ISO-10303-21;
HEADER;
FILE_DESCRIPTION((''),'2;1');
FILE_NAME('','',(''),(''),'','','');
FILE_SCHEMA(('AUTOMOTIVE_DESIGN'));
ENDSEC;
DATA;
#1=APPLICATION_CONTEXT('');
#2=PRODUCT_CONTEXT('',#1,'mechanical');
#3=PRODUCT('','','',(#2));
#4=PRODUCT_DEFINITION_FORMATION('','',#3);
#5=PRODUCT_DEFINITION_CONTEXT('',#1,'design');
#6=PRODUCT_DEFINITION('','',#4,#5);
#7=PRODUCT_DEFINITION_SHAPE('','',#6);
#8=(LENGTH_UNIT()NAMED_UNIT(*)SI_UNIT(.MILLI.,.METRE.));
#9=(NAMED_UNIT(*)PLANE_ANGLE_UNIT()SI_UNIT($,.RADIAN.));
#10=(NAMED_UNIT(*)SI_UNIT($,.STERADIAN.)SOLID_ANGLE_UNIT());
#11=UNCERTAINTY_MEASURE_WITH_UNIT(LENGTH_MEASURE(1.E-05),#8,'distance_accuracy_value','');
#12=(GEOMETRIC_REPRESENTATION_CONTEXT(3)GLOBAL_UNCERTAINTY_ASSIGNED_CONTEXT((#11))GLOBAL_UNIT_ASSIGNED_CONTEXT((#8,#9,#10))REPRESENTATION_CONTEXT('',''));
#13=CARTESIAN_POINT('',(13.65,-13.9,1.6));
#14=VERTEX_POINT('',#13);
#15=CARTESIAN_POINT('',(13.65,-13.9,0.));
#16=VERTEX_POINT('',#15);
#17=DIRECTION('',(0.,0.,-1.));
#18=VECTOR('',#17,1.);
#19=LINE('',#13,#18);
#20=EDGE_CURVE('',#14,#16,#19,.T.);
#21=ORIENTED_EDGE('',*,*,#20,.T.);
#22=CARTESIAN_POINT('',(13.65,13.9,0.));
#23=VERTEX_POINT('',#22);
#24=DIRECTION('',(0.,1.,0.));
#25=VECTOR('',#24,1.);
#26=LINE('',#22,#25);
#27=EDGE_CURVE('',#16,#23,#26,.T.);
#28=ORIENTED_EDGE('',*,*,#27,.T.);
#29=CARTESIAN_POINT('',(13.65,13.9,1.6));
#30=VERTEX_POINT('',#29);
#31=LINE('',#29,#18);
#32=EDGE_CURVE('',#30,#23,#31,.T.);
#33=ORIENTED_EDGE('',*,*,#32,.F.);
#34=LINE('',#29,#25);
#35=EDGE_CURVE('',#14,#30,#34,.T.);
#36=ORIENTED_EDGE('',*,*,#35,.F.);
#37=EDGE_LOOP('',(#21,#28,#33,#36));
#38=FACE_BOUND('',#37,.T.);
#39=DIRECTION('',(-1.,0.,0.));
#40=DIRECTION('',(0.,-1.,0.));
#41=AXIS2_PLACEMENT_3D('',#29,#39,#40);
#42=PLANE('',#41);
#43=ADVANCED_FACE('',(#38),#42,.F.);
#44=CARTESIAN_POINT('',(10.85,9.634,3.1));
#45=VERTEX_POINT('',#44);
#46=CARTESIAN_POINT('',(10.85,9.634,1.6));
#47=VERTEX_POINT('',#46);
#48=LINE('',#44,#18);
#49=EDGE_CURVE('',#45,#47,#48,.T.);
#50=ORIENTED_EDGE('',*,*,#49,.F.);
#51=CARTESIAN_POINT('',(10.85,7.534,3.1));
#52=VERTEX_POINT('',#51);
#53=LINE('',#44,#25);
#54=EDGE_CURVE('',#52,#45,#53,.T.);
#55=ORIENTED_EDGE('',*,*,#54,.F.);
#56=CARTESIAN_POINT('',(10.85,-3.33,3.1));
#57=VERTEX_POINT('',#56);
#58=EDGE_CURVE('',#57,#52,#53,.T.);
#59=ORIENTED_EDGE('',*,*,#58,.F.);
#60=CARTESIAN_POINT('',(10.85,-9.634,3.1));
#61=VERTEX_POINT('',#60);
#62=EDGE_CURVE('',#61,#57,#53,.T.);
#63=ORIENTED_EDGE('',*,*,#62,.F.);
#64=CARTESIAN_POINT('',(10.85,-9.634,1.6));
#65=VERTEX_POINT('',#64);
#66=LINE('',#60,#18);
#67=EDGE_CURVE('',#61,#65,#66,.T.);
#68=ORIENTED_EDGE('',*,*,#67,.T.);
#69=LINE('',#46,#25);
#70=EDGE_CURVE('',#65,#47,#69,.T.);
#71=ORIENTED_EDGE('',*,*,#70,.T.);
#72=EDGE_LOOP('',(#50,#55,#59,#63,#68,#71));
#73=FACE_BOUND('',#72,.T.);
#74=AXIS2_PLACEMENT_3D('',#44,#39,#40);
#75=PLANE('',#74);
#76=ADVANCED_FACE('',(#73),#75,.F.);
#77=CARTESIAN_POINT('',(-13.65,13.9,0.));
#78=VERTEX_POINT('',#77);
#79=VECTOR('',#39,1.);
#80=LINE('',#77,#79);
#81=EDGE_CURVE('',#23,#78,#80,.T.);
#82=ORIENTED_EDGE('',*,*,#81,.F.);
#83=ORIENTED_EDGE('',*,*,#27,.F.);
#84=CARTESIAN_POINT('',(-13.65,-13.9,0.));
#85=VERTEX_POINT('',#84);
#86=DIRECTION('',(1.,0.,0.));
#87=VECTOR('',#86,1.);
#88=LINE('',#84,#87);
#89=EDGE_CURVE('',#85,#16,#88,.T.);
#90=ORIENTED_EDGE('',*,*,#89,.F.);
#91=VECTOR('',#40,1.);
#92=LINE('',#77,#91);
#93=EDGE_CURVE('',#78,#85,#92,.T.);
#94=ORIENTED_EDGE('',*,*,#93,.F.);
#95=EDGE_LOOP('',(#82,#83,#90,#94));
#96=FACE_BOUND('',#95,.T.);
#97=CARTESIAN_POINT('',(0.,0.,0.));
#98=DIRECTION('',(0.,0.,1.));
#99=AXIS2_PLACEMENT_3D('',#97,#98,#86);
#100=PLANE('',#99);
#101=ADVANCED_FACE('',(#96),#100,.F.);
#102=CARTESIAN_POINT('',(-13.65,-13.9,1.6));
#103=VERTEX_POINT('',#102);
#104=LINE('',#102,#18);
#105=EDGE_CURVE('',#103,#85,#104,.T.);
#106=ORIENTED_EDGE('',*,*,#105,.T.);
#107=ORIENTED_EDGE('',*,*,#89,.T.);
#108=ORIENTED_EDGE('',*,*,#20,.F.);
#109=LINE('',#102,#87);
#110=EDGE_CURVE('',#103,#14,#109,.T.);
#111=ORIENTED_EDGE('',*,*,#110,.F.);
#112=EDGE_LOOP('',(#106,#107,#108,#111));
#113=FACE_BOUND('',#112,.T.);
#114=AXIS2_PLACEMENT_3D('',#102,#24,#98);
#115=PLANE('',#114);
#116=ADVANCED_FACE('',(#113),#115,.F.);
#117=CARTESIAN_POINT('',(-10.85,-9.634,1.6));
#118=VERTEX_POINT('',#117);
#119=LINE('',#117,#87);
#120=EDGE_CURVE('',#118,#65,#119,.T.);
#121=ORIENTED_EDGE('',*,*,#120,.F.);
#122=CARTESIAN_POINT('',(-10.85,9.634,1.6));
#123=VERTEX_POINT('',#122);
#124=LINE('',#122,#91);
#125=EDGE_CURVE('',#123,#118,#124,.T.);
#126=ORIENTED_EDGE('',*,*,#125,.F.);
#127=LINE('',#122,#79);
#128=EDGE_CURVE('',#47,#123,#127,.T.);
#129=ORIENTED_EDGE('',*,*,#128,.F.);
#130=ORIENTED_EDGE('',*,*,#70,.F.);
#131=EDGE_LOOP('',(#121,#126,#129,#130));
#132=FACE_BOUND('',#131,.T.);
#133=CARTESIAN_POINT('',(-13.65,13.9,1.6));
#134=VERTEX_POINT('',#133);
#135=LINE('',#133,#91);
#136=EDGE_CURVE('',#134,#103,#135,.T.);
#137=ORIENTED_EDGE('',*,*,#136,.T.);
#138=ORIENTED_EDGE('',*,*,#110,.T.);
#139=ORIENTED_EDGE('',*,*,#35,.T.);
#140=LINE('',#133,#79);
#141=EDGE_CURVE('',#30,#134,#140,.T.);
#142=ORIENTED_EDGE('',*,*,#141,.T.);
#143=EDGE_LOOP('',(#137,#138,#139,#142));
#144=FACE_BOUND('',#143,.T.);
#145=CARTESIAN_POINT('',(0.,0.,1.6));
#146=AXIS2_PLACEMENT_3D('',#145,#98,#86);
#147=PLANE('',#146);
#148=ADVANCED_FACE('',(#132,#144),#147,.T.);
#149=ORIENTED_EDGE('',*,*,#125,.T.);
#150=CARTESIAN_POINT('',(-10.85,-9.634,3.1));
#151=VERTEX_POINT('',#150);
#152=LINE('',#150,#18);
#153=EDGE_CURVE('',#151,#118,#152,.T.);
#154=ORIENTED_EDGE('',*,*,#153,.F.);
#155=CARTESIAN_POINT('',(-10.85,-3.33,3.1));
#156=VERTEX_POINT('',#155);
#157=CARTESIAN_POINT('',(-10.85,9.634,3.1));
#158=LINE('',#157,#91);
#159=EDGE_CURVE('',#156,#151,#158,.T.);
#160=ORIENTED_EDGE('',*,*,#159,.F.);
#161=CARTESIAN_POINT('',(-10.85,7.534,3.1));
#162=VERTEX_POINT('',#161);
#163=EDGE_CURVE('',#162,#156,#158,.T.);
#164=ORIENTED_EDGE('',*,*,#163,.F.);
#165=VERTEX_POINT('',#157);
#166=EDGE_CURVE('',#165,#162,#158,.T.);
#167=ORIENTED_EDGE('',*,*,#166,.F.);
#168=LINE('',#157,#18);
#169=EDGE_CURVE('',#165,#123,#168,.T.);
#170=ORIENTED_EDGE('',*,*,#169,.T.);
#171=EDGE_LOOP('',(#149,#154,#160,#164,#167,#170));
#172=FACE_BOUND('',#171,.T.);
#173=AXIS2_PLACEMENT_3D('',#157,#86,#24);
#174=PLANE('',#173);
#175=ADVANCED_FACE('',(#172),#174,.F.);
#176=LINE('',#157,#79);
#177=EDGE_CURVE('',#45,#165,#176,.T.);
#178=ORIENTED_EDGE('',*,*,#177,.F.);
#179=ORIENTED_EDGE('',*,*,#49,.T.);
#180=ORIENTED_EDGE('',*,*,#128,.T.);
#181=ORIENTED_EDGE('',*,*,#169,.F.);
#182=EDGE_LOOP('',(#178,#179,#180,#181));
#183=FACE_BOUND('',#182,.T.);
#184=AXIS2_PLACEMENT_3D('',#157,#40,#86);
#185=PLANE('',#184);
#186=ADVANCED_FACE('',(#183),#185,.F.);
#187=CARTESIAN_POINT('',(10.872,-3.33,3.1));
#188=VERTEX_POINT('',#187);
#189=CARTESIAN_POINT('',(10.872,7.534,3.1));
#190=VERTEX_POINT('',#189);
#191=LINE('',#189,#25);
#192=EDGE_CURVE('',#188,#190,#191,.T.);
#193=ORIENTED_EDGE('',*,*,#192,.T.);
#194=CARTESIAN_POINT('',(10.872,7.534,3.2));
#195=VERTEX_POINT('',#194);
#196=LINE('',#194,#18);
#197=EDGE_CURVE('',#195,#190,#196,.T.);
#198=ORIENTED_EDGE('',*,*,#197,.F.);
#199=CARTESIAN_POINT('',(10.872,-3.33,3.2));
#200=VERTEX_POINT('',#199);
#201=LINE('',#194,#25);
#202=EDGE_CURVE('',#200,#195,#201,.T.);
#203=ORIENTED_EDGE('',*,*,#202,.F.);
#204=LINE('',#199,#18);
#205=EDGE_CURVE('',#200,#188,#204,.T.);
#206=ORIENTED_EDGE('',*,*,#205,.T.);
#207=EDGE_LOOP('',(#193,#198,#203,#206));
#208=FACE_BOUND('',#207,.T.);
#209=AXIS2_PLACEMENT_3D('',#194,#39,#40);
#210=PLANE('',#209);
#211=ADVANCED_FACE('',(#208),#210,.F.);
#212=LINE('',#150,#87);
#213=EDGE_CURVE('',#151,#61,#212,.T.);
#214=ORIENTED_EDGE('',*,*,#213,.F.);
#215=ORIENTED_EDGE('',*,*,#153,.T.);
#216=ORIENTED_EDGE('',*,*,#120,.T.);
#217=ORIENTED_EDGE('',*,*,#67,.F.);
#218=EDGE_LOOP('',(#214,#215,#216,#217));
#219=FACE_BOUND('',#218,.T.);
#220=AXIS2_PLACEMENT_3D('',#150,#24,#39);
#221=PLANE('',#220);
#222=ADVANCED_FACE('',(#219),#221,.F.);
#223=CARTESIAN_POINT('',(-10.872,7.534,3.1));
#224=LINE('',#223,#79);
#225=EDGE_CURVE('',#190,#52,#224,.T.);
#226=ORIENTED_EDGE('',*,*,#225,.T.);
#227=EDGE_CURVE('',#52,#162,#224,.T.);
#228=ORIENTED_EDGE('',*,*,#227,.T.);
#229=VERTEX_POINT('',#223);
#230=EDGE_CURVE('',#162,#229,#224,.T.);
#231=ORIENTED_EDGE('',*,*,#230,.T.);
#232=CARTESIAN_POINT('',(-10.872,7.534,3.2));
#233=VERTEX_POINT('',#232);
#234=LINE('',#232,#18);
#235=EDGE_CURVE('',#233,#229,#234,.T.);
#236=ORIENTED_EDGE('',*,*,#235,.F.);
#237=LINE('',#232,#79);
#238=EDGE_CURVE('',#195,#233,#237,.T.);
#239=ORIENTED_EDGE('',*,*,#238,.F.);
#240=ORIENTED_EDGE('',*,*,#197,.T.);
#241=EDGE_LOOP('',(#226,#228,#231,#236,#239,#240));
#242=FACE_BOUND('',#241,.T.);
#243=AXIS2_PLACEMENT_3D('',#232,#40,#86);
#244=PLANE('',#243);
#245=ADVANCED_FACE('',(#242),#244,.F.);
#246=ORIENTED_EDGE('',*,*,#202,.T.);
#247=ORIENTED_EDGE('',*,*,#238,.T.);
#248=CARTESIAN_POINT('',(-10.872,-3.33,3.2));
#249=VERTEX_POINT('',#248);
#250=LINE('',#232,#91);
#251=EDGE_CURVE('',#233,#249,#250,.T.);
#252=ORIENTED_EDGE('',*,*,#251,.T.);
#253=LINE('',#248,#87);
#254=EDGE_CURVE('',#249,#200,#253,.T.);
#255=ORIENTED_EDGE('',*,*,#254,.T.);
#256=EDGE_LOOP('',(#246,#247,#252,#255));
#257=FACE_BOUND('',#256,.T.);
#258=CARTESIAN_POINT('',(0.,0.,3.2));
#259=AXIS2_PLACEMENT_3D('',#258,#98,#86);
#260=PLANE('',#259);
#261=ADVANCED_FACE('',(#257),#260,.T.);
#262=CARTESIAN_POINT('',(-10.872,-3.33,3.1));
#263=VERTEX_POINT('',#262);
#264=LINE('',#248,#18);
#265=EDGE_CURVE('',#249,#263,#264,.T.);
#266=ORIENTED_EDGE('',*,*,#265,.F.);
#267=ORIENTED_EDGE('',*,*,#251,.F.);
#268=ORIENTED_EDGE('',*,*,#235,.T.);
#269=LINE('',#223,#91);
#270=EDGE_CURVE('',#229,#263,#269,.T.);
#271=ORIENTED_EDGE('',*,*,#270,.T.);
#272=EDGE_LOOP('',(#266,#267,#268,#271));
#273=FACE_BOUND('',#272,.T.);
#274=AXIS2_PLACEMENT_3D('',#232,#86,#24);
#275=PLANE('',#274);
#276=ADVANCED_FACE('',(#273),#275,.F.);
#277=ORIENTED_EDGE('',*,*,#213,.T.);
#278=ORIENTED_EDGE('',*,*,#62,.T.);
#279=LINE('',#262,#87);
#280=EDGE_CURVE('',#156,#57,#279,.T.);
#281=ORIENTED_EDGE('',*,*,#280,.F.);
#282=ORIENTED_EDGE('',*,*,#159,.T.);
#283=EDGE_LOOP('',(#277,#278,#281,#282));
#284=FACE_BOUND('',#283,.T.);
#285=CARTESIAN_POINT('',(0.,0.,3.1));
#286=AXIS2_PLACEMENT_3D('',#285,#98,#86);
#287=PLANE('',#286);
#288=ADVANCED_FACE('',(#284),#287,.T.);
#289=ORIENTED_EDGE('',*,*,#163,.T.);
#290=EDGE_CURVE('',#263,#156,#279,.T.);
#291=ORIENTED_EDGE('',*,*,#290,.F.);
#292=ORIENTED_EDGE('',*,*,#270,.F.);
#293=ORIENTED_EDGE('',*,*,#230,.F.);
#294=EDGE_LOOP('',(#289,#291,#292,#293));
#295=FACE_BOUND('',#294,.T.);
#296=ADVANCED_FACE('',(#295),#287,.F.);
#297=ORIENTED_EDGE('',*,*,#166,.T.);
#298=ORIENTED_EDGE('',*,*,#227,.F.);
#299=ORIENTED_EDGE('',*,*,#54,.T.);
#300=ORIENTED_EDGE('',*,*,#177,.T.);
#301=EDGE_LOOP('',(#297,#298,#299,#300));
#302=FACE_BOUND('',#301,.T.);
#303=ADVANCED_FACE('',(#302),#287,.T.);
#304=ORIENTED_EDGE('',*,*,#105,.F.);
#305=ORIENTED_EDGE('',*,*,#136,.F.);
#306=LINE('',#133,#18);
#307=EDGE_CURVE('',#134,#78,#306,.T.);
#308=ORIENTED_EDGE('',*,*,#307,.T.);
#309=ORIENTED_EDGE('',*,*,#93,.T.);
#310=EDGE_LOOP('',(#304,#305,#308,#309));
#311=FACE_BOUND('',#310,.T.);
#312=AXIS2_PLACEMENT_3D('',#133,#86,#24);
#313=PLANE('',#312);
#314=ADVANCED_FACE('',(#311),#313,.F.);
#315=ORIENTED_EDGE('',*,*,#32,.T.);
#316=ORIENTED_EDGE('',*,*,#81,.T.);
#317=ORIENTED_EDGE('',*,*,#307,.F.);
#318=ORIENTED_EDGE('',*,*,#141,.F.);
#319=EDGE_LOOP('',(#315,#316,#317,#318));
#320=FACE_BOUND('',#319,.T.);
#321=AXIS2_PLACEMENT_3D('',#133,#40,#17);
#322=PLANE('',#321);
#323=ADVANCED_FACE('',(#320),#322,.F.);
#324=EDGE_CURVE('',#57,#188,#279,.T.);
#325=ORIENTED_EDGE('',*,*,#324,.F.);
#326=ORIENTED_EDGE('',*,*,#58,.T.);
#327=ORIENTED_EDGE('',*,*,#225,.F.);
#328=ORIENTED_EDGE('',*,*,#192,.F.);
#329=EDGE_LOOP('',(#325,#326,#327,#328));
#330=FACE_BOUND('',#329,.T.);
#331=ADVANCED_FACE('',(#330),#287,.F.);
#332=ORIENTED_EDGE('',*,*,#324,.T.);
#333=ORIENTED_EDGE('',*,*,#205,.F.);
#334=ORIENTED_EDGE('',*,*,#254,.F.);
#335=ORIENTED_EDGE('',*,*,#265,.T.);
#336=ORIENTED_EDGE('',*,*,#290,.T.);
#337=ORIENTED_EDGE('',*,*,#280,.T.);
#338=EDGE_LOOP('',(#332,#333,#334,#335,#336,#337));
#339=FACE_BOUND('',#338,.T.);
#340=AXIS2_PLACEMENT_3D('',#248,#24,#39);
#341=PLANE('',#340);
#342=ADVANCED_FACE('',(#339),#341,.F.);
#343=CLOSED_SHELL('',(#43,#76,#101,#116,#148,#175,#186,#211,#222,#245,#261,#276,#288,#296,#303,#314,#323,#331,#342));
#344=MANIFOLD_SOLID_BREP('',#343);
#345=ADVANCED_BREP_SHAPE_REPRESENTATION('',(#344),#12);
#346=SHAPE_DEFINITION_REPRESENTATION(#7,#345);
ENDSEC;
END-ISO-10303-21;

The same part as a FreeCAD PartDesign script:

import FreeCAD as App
import Part
import Sketcher

V = App.Vector


def add_polygon(sketch, points):
    """Adds a closed chain of lines whose ends are joined by coincident constraints."""
    first, n = sketch.GeometryCount, len(points)
    for a, b in zip(points, points[1:] + points[:1]):
        sketch.addGeometry(Part.LineSegment(App.Vector(*a, 0), App.Vector(*b, 0)), False)
    for i in range(n):
        sketch.addConstraint(Sketcher.Constraint("Coincident", first + i, 2, first + (i + 1) % n, 1))

doc = App.newDocument("Part")
body = doc.addObject("PartDesign::Body", "Body")

# Sketch on XY plane
sketch1 = body.newObject("Sketcher::SketchObject", "Sketch")
sketch1.AttachmentSupport = (doc.getObject("XY_Plane"), [""])
sketch1.MapMode = "FlatFace"
add_polygon(sketch1, [(-14, 14), (-14, -14), (14, -14), (14, 14)])  # lines 0-3
sketch1.addConstraint(Sketcher.Constraint("Vertical", 0))
sketch1.addConstraint(Sketcher.Constraint("Horizontal", 1))
sketch1.addConstraint(Sketcher.Constraint("Vertical", 2))
sketch1.addConstraint(Sketcher.Constraint("Horizontal", 3))
sketch1.addConstraint(Sketcher.Constraint("Symmetric", 0, 2, 2, 2, -1, 1))
sketch1.addConstraint(Sketcher.Constraint("DistanceX", 1, 1, 1, 2, 27.3))
sketch1.addConstraint(Sketcher.Constraint("DistanceY", 0, 2, 0, 1, 27.8))
pad1 = body.newObject("PartDesign::Pad", "Pad")
pad1.Profile = sketch1
pad1.Length = 1.6

# Sketch on XY plane
sketch2 = body.newObject("Sketcher::SketchObject", "Sketch001")
sketch2.AttachmentSupport = (doc.getObject("XY_Plane"), [""])
sketch2.MapMode = "FlatFace"
sketch2.AttachmentOffset = App.Placement(V(0, 0, 1.6), App.Rotation())
add_polygon(sketch2, [(-11, 10), (-11, -10), (11, -10), (11, 10)])  # lines 0-3
sketch2.addConstraint(Sketcher.Constraint("Vertical", 0))
sketch2.addConstraint(Sketcher.Constraint("Horizontal", 1))
sketch2.addConstraint(Sketcher.Constraint("Vertical", 2))
sketch2.addConstraint(Sketcher.Constraint("Horizontal", 3))
sketch2.addConstraint(Sketcher.Constraint("Symmetric", 0, 2, 2, 2, -1, 1))
sketch2.addConstraint(Sketcher.Constraint("DistanceX", 1, 1, 1, 2, 21.7))
sketch2.addConstraint(Sketcher.Constraint("DistanceY", 0, 2, 0, 1, 19.268))
pad2 = body.newObject("PartDesign::Pad", "Pad001")
pad2.Profile = sketch2
pad2.Length = 1.5

# Sketch on XY plane
sketch3 = body.newObject("Sketcher::SketchObject", "Sketch002")
sketch3.AttachmentSupport = (doc.getObject("XY_Plane"), [""])
sketch3.MapMode = "FlatFace"
sketch3.AttachmentOffset = App.Placement(V(0, 0, 3.1), App.Rotation())
add_polygon(sketch3, [(-11, 8), (-11, -3), (11, -3), (11, 8)])  # lines 0-3
sketch3.addConstraint(Sketcher.Constraint("Vertical", 0))
sketch3.addConstraint(Sketcher.Constraint("Horizontal", 1))
sketch3.addConstraint(Sketcher.Constraint("Vertical", 2))
sketch3.addConstraint(Sketcher.Constraint("Horizontal", 3))
sketch3.addConstraint(Sketcher.Constraint("DistanceX", 1, 1, 1, 2, 21.744))
sketch3.addConstraint(Sketcher.Constraint("DistanceY", 0, 2, 0, 1, 10.864))
sketch3.addConstraint(Sketcher.Constraint("DistanceY", 0, 2, -1, 1, 3.33))
sketch3.addConstraint(Sketcher.Constraint("DistanceX", 0, 2, -1, 1, 10.872))
pad3 = body.newObject("PartDesign::Pad", "Pad002")
pad3.Profile = sketch3
pad3.Length = 0.1

doc.recompute()
